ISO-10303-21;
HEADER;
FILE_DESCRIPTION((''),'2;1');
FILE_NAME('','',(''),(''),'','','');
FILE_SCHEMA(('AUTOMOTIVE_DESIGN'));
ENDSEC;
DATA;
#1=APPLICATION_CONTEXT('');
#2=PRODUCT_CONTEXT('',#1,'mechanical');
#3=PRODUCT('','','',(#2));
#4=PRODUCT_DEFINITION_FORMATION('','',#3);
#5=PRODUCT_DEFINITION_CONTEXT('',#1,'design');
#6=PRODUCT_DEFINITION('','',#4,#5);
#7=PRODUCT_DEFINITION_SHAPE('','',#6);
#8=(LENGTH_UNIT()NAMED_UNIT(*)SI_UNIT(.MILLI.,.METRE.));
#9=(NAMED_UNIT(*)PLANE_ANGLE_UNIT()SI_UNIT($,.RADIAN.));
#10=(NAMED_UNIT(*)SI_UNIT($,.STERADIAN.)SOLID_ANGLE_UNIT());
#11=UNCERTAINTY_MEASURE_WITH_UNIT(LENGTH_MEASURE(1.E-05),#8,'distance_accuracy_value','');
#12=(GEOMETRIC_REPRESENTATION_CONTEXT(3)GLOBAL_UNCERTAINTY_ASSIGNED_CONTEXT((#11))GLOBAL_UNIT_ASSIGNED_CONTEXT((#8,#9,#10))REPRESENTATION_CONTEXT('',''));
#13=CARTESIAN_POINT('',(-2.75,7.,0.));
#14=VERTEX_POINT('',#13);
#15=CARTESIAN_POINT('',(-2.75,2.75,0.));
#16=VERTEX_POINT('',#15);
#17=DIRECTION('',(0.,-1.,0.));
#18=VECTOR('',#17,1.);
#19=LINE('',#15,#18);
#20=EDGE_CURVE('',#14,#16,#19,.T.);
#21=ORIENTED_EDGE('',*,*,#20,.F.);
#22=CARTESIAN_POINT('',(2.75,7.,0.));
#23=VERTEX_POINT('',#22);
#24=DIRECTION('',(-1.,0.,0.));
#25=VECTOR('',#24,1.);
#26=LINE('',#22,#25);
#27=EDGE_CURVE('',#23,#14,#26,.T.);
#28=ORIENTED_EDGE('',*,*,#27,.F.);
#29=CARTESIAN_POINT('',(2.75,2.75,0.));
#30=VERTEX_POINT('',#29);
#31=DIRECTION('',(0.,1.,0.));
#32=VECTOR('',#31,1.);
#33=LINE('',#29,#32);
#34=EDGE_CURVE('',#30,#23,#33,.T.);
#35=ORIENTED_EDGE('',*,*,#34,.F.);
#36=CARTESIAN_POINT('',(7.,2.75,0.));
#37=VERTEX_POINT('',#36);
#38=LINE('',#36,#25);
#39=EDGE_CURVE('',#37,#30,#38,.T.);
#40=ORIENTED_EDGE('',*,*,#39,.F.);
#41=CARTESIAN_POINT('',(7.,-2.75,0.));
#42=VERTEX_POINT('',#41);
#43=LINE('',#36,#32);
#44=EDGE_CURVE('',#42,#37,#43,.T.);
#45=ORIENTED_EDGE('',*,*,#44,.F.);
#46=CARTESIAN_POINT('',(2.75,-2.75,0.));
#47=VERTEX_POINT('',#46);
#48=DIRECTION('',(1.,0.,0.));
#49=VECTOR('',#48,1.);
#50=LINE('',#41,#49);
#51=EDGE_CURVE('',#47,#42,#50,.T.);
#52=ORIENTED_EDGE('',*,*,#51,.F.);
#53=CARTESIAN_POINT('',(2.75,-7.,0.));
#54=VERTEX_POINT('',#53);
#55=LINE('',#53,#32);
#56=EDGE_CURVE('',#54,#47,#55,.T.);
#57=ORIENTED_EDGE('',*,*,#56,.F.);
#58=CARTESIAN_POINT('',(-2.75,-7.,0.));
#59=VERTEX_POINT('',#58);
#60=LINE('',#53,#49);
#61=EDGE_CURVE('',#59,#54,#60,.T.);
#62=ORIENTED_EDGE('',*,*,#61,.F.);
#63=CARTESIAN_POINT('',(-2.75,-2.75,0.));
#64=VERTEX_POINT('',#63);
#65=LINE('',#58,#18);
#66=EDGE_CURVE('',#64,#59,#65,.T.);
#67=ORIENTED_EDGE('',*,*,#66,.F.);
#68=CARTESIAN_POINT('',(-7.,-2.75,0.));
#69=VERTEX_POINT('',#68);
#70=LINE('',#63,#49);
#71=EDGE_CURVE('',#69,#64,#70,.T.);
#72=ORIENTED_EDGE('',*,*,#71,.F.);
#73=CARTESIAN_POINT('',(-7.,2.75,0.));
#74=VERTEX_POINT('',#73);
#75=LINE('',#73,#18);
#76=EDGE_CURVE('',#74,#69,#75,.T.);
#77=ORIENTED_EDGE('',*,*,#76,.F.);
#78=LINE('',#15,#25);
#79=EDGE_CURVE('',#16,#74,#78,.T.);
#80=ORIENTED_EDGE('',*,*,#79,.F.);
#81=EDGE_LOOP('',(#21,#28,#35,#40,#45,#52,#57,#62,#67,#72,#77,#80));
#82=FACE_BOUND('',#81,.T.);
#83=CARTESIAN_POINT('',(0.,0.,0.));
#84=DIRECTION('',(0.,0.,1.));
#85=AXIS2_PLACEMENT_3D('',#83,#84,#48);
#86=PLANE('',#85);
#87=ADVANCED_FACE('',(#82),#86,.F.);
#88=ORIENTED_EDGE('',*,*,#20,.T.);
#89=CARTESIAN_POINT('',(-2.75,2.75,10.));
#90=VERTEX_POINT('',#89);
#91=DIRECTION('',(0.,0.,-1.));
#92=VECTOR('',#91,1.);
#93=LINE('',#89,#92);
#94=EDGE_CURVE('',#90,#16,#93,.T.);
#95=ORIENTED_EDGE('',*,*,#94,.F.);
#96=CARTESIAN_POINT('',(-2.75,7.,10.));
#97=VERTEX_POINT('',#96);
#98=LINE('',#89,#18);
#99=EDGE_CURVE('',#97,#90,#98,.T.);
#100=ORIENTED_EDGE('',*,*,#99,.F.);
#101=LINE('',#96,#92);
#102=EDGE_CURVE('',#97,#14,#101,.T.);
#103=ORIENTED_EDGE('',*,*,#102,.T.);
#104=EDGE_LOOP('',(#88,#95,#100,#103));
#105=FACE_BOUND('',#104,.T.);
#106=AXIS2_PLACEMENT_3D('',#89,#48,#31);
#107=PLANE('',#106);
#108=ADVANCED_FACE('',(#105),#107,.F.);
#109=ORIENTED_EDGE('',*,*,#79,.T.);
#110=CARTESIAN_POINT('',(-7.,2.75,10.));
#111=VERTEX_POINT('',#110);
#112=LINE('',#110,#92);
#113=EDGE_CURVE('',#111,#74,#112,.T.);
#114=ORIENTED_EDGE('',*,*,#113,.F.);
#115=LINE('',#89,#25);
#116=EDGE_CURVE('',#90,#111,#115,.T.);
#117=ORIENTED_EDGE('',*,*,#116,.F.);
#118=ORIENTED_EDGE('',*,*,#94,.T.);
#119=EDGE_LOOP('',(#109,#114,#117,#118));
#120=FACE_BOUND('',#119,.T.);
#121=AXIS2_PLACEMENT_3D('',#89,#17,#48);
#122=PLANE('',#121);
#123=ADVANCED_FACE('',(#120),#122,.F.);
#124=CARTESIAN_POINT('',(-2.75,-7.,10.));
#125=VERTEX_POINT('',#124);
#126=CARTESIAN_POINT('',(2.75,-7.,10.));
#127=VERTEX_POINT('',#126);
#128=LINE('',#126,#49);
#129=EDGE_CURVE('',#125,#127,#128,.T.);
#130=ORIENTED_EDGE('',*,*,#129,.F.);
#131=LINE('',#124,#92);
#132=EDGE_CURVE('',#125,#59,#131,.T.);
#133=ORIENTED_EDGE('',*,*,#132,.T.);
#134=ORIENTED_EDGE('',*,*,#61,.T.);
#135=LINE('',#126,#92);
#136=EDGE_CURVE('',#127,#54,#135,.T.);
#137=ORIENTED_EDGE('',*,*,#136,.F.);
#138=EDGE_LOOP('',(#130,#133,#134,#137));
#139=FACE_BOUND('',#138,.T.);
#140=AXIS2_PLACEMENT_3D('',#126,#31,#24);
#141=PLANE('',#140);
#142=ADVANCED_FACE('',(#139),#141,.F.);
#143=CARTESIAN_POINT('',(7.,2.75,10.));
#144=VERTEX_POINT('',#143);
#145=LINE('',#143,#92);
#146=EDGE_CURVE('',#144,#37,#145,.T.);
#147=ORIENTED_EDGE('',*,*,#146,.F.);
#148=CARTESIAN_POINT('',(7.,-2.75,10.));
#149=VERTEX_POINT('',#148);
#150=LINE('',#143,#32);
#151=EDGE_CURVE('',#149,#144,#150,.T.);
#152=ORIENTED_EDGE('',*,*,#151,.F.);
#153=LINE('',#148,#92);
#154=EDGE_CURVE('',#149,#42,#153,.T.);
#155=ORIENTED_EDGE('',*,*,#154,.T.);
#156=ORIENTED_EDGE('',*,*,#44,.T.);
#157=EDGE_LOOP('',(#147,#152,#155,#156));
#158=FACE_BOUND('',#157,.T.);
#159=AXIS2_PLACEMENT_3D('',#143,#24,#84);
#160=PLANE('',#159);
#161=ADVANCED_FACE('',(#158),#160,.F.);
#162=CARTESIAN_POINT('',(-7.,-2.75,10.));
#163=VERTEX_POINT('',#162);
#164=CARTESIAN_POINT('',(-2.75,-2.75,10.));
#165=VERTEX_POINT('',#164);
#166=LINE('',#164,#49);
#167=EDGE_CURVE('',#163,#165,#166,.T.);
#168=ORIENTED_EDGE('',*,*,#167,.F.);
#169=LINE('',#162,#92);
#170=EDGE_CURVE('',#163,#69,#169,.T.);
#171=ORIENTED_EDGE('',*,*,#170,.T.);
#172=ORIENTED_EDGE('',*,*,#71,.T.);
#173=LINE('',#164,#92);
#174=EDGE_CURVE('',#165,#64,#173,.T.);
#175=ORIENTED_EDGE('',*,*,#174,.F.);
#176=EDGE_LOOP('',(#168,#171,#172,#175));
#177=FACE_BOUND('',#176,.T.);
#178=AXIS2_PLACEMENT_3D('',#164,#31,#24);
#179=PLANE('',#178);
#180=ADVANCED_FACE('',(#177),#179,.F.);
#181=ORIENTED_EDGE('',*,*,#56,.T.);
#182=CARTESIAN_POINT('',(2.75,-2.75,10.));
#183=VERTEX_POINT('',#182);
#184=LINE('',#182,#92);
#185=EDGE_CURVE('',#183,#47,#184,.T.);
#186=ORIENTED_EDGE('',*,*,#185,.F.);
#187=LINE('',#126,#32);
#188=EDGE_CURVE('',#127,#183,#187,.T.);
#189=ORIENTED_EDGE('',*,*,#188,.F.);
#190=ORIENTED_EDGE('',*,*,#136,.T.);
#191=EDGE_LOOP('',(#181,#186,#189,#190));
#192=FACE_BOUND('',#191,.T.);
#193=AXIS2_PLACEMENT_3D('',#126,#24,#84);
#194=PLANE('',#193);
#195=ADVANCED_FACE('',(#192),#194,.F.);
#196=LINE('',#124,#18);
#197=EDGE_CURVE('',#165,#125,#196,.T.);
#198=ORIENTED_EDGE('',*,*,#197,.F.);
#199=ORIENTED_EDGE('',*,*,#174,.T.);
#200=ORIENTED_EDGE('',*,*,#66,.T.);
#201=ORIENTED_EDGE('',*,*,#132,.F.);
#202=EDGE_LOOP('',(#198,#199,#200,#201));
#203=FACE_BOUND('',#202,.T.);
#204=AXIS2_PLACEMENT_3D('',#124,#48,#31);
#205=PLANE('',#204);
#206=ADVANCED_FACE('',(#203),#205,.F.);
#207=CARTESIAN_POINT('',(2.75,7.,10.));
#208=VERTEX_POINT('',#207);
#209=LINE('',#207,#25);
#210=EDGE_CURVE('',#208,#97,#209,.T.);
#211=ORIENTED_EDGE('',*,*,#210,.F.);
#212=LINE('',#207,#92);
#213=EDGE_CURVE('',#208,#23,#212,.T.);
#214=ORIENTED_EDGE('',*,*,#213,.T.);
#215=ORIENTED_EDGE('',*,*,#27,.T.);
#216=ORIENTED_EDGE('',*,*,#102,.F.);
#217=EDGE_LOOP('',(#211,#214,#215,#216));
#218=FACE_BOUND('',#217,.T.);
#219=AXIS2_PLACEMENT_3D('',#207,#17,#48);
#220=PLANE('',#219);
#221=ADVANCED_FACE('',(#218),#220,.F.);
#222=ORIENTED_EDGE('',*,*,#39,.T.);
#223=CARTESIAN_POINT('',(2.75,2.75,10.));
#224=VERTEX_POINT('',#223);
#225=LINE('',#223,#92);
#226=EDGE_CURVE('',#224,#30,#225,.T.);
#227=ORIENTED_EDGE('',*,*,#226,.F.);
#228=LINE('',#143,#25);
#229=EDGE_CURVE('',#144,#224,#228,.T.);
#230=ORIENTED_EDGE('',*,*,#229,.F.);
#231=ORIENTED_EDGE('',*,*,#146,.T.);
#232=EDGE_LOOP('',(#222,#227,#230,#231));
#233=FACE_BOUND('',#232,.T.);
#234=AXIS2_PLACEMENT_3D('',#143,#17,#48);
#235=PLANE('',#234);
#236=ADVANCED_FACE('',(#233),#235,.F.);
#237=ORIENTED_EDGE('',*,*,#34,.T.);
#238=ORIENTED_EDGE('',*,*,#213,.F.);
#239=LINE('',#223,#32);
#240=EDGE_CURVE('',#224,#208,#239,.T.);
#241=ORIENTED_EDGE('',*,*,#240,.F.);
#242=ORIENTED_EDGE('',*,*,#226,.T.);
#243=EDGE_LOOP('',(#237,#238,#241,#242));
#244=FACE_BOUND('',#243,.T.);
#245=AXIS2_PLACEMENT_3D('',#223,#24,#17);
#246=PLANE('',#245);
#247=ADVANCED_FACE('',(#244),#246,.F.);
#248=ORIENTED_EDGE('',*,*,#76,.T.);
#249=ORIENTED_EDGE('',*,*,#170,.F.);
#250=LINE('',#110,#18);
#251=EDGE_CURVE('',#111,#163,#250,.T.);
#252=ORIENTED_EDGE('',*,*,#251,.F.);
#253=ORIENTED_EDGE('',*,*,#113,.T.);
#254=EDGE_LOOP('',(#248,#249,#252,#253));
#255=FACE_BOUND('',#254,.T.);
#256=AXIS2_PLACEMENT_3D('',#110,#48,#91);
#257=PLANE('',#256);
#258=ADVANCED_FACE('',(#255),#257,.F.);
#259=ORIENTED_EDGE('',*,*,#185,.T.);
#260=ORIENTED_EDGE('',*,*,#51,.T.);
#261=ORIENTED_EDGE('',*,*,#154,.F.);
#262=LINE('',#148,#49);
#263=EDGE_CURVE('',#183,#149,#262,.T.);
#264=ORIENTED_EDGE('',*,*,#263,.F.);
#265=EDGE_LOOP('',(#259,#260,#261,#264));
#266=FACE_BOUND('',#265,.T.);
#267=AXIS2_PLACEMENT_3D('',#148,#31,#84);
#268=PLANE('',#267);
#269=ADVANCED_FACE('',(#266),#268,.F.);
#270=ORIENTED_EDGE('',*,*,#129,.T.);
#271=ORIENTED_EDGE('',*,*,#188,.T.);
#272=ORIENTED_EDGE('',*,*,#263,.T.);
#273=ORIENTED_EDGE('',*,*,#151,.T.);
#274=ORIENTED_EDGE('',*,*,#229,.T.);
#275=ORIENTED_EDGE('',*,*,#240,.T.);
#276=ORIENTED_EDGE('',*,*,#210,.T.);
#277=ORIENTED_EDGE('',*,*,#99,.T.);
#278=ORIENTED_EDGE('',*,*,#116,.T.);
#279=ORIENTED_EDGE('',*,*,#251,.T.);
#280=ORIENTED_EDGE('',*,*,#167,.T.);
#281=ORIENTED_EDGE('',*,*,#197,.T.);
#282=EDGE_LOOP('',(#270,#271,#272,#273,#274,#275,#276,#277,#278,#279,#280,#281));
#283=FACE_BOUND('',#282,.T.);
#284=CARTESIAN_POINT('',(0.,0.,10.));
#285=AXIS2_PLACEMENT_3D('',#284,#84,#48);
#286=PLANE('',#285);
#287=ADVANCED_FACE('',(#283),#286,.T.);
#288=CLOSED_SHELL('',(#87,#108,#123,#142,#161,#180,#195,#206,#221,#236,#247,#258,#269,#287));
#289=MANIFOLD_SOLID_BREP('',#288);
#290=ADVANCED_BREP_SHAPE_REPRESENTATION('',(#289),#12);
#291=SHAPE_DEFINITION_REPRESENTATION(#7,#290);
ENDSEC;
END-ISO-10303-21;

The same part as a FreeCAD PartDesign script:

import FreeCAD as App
import Part
import Sketcher
Q = App.Units.Quantity

doc = App.newDocument("Part")
body = doc.addObject("PartDesign::Body", "Body")

# Sketch on XY plane
sketch1 = doc.addObject("Sketcher::SketchObject", "Sketch")
body.addObject(sketch1)
sketch1.AttachmentSupport = (doc.XY_Plane, [""])
sketch1.MapMode = "FlatFace"
sketch1.addGeometry([
    Part.LineSegment(App.Vector(-2.8, 7, 0), App.Vector(-2.8, 2.8, 0)),  # 0
    Part.LineSegment(App.Vector(-2.8, 2.8, 0), App.Vector(-7, 2.8, 0)),  # 1
    Part.LineSegment(App.Vector(-7, 2.8, 0), App.Vector(-7, -2.8, 0)),  # 2
    Part.LineSegment(App.Vector(-7, -2.8, 0), App.Vector(-2.8, -2.8, 0)),  # 3
    Part.LineSegment(App.Vector(-2.8, -2.8, 0), App.Vector(-2.8, -7, 0)),  # 4
    Part.LineSegment(App.Vector(-2.8, -7, 0), App.Vector(2.8, -7, 0)),  # 5
    Part.LineSegment(App.Vector(2.8, -7, 0), App.Vector(2.8, -2.8, 0)),  # 6
    Part.LineSegment(App.Vector(2.8, -2.8, 0), App.Vector(7, -2.8, 0)),  # 7
    Part.LineSegment(App.Vector(7, -2.8, 0), App.Vector(7, 2.8, 0)),  # 8
    Part.LineSegment(App.Vector(7, 2.8, 0), App.Vector(2.8, 2.8, 0)),  # 9
    Part.LineSegment(App.Vector(2.8, 2.8, 0), App.Vector(2.8, 7, 0)),  # 10
    Part.LineSegment(App.Vector(2.8, 7, 0), App.Vector(-2.8, 7, 0)),  # 11
], False)
sketch1.addConstraint([
    Sketcher.Constraint("Coincident", 0, 2, 1, 1),
    Sketcher.Constraint("Coincident", 1, 2, 2, 1),
    Sketcher.Constraint("Coincident", 2, 2, 3, 1),
    Sketcher.Constraint("Coincident", 3, 2, 4, 1),
    Sketcher.Constraint("Coincident", 4, 2, 5, 1),
    Sketcher.Constraint("Coincident", 5, 2, 6, 1),
    Sketcher.Constraint("Coincident", 6, 2, 7, 1),
    Sketcher.Constraint("Coincident", 7, 2, 8, 1),
    Sketcher.Constraint("Coincident", 8, 2, 9, 1),
    Sketcher.Constraint("Coincident", 9, 2, 10, 1),
    Sketcher.Constraint("Coincident", 10, 2, 11, 1),
    Sketcher.Constraint("Coincident", 11, 2, 0, 1),
    Sketcher.Constraint("Vertical", 0),
    Sketcher.Constraint("Horizontal", 1),
    Sketcher.Constraint("Vertical", 2),
    Sketcher.Constraint("Horizontal", 3),
    Sketcher.Constraint("Vertical", 4),
    Sketcher.Constraint("Horizontal", 5),
    Sketcher.Constraint("Vertical", 6),
    Sketcher.Constraint("Horizontal", 7),
    Sketcher.Constraint("Vertical", 8),
    Sketcher.Constraint("Horizontal", 9),
    Sketcher.Constraint("Vertical", 10),
    Sketcher.Constraint("Horizontal", 11),
    Sketcher.Constraint("Symmetric", 0, 2, 6, 2, -1, 1),
    Sketcher.Constraint("Symmetric", 2, 2, 8, 2, -1, 1),
    Sketcher.Constraint("Symmetric", 4, 2, 10, 2, -1, 1),
    Sketcher.Constraint("Symmetric", 3, 2, 6, 2, -2),
    Sketcher.Constraint("Equal", 9, 0),
    Sketcher.Constraint("Equal", 11, 2),
    Sketcher.Constraint("DistanceX", 5, 1, 5, 2, Q("5.5 mm")),
    Sketcher.Constraint("DistanceX", 1, 2, -1, 1, Q("7 mm")),
])
pad1 = doc.addObject("PartDesign::Pad", "Pad")
body.addObject(pad1)
pad1.Profile = sketch1
pad1.Length = 10

doc.recompute()
